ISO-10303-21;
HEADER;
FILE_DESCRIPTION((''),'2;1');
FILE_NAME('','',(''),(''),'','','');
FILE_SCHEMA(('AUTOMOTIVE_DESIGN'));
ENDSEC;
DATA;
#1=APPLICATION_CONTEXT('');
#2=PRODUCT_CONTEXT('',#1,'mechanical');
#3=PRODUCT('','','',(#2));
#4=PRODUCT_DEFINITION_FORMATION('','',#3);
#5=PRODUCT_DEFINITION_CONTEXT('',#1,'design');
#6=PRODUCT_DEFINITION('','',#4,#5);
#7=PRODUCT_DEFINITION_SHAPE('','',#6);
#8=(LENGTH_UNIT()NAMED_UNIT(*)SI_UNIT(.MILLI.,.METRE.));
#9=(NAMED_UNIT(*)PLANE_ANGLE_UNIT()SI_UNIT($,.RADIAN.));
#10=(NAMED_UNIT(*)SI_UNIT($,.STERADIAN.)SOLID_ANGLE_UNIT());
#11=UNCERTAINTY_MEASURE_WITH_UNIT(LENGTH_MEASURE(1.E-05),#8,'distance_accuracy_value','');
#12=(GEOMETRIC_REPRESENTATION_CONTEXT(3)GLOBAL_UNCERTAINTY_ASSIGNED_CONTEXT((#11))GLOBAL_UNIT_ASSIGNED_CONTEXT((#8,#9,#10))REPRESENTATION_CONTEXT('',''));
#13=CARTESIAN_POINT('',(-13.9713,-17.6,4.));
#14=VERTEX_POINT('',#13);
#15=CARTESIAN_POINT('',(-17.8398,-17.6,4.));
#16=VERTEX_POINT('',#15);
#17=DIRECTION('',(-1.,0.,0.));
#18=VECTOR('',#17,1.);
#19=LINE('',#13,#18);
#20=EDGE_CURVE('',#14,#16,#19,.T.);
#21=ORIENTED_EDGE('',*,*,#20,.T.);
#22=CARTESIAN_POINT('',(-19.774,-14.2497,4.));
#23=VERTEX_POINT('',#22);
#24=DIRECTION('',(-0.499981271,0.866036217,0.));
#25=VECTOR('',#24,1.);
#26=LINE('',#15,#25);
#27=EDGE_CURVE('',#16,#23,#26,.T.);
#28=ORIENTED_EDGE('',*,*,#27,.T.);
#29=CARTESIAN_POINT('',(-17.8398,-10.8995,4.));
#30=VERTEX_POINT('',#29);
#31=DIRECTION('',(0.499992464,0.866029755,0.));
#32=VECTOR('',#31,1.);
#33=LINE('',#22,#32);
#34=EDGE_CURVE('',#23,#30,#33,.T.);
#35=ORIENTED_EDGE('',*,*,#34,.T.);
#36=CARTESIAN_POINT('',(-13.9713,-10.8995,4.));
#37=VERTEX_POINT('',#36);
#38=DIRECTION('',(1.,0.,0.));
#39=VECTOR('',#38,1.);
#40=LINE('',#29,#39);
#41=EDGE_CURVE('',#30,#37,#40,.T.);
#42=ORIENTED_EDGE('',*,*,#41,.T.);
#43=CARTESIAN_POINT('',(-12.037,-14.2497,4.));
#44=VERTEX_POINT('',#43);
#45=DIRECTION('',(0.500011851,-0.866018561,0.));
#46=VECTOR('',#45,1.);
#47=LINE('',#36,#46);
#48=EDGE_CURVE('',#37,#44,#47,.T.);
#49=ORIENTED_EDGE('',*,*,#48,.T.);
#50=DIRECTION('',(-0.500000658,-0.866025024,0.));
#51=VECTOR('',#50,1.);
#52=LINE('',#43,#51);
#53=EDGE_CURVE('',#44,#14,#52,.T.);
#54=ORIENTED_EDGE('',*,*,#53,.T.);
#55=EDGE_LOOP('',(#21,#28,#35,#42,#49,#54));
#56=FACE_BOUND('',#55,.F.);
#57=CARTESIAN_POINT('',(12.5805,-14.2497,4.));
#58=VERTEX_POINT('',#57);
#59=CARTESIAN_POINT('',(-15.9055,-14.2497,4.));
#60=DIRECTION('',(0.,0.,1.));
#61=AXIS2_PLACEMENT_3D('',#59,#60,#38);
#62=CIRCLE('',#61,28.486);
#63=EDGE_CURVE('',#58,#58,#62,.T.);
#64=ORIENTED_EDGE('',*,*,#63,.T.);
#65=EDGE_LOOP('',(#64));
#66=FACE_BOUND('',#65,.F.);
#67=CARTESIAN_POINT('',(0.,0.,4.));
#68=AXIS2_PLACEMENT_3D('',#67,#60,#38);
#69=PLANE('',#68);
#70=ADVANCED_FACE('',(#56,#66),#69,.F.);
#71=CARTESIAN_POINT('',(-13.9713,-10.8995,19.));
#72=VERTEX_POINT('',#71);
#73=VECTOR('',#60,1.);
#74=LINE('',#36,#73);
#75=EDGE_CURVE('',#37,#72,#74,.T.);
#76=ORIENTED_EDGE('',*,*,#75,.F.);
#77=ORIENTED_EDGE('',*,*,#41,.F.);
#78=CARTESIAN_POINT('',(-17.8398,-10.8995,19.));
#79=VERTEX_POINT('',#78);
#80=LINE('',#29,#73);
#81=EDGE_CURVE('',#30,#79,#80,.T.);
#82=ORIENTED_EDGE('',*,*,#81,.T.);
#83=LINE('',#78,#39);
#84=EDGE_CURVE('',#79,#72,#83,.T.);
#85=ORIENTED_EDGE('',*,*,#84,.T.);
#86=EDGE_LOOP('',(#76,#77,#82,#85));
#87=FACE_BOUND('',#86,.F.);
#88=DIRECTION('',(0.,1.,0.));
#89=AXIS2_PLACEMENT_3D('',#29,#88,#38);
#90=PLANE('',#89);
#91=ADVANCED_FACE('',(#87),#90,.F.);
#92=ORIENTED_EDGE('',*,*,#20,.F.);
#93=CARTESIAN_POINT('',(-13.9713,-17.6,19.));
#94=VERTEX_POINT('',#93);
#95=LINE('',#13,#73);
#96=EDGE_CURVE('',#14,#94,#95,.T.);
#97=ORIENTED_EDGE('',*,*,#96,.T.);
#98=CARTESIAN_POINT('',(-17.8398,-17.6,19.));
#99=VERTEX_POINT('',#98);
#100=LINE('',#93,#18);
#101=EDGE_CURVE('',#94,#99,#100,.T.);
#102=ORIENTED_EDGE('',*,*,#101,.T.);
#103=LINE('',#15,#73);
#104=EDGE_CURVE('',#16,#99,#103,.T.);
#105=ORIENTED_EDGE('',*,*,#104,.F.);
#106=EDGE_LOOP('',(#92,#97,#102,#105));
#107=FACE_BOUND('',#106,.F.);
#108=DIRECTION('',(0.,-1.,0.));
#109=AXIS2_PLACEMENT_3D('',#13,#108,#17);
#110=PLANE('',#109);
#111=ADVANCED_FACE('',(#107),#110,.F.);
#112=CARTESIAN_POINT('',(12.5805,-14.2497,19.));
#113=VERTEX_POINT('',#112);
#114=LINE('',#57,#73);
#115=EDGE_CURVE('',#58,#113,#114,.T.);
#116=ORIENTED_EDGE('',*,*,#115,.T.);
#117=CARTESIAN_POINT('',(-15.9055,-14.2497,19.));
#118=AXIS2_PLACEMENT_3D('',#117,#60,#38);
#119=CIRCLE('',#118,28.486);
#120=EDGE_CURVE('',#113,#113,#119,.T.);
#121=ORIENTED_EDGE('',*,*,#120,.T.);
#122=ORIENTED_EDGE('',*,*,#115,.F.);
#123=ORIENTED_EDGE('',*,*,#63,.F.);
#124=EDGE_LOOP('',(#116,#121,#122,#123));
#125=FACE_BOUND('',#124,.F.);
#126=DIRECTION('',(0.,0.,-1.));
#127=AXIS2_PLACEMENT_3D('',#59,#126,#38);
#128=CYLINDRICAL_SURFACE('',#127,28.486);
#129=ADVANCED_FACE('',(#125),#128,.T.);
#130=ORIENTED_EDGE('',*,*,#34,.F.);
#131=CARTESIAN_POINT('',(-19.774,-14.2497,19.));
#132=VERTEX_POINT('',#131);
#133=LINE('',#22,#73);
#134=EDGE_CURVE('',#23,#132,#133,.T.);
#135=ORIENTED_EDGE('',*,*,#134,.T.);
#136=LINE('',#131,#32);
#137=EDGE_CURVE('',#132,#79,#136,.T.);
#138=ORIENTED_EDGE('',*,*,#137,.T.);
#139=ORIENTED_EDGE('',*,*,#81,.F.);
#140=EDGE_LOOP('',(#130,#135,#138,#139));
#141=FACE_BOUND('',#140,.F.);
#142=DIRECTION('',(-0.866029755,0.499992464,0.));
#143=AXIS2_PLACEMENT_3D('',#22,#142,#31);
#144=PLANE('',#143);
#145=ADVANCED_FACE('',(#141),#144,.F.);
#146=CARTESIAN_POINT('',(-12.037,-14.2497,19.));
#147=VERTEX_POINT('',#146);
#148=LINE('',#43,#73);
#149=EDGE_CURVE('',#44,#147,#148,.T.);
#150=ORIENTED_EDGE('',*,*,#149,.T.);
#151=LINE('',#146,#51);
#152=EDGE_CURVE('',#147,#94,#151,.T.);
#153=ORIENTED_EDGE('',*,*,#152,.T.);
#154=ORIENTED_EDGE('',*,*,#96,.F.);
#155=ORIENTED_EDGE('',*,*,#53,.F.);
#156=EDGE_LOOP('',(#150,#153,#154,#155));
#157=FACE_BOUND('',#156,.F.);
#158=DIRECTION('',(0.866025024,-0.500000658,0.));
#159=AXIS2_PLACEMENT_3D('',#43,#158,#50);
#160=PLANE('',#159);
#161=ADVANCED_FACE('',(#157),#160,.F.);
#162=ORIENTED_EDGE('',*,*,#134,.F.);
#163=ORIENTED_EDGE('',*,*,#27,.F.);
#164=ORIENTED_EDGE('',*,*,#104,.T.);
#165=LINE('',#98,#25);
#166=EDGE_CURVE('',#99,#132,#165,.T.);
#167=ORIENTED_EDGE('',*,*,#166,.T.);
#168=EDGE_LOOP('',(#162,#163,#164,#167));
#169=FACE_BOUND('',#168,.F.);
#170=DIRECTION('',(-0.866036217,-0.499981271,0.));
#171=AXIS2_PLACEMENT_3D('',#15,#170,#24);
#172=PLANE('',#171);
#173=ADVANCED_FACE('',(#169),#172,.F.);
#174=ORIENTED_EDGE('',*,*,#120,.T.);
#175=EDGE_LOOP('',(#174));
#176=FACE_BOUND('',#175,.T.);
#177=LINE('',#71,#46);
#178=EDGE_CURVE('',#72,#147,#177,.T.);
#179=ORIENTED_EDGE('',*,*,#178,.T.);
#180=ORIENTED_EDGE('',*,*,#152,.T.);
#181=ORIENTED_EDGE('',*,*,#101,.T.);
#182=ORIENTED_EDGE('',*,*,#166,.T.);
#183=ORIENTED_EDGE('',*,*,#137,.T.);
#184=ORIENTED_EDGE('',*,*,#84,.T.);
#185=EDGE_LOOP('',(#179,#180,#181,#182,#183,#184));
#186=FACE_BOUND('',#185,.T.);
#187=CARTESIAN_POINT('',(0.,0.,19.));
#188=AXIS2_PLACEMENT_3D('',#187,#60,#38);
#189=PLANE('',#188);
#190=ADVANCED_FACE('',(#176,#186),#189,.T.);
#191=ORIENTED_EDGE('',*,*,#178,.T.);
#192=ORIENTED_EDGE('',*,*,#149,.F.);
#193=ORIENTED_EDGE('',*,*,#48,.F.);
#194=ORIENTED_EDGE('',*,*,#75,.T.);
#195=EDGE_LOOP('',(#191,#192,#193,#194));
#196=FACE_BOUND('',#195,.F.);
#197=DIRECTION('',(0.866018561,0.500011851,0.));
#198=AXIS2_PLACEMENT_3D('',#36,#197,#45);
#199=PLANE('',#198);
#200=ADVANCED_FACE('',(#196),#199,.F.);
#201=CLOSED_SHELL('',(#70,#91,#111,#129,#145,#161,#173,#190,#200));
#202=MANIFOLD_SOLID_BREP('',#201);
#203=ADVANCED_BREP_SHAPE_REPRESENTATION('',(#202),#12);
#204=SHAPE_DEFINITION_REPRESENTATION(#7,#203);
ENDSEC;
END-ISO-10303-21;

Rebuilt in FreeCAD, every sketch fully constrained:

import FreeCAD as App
import Part
import Sketcher

V = App.Vector
Q = App.Units.Quantity


def add_polygon(sketch, points):
    """Adds a closed chain of lines whose ends are joined by coincident constraints."""
    first, n = sketch.GeometryCount, len(points)
    for a, b in zip(points, points[1:] + points[:1]):
        sketch.addGeometry(Part.LineSegment(App.Vector(*a, 0), App.Vector(*b, 0)), False)
    for i in range(n):
        sketch.addConstraint(Sketcher.Constraint("Coincident", first + i, 2, first + (i + 1) % n, 1))

doc = App.newDocument("Part")
params = doc.addObject("Spreadsheet::Sheet", "Params")
for row, (alias, value) in enumerate([
    ("pad1_length", "15 mm"),
], start=1):
    params.set(f"A{row}", alias)
    params.set(f"B{row}", "=" + value)
    params.setAlias(f"B{row}", alias)

body = doc.addObject("PartDesign::Body", "Body")

sketch1 = body.newObject("Sketcher::SketchObject", "Sketch")
sketch1.AttachmentSupport = (doc.getObject("XY_Plane"), [""])
sketch1.MapMode = "FlatFace"
sketch1.AttachmentOffset = App.Placement(V(0, 0, 4), App.Rotation())
sketch1.addGeometry(Part.Circle(V(-15.9, -14.2, 0), V(0, 0, 1), 28.5), False)
add_polygon(sketch1, [(-17.8, -10.9), (-14, -10.9), (-12, -14.2), (-14, -17.6), (-17.8, -17.6), (-19.8, -14.2)])
sketch1.addConstraint(Sketcher.Constraint("Horizontal", 1))
sketch1.addConstraint(Sketcher.Constraint("Horizontal", 4))
sketch1.addConstraint(Sketcher.Constraint("Parallel", 2, 5))
sketch1.addConstraint(Sketcher.Constraint("Parallel", 3, 6))
sketch1.addConstraint(Sketcher.Constraint("Horizontal", 0, 3, 2, 2))
sketch1.addConstraint(Sketcher.Constraint("Horizontal", 2, 2, 5, 2))
sketch1.addConstraint(Sketcher.Constraint("Vertical", 1, 2, 3, 2))
sketch1.addConstraint(Sketcher.Constraint("Vertical", 4, 2, 6, 2))
sketch1.addConstraint(Sketcher.Constraint("Diameter", 0, 56.972))
sketch1.addConstraint(Sketcher.Constraint("Angle", 2, Q("-59.9992 deg")))
sketch1.addConstraint(Sketcher.Constraint("DistanceX", 5, 2, 2, 2, 7.737))
sketch1.addConstraint(Sketcher.Constraint("DistanceY", 3, 2, -1, 1, 17.6))
sketch1.addConstraint(Sketcher.Constraint("DistanceX", 1, 1, 1, 2, 3.8685))
sketch1.addConstraint(Sketcher.Constraint("DistanceX", 2, 2, -1, 1, 12.037))
sketch1.addConstraint(Sketcher.Constraint("DistanceX", 0, 3, -1, 1, 15.9055))
pad1 = body.newObject("PartDesign::Pad", "Pad")
pad1.Profile = sketch1
pad1.setExpression("Length", "Params.pad1_length")

doc.recompute()
